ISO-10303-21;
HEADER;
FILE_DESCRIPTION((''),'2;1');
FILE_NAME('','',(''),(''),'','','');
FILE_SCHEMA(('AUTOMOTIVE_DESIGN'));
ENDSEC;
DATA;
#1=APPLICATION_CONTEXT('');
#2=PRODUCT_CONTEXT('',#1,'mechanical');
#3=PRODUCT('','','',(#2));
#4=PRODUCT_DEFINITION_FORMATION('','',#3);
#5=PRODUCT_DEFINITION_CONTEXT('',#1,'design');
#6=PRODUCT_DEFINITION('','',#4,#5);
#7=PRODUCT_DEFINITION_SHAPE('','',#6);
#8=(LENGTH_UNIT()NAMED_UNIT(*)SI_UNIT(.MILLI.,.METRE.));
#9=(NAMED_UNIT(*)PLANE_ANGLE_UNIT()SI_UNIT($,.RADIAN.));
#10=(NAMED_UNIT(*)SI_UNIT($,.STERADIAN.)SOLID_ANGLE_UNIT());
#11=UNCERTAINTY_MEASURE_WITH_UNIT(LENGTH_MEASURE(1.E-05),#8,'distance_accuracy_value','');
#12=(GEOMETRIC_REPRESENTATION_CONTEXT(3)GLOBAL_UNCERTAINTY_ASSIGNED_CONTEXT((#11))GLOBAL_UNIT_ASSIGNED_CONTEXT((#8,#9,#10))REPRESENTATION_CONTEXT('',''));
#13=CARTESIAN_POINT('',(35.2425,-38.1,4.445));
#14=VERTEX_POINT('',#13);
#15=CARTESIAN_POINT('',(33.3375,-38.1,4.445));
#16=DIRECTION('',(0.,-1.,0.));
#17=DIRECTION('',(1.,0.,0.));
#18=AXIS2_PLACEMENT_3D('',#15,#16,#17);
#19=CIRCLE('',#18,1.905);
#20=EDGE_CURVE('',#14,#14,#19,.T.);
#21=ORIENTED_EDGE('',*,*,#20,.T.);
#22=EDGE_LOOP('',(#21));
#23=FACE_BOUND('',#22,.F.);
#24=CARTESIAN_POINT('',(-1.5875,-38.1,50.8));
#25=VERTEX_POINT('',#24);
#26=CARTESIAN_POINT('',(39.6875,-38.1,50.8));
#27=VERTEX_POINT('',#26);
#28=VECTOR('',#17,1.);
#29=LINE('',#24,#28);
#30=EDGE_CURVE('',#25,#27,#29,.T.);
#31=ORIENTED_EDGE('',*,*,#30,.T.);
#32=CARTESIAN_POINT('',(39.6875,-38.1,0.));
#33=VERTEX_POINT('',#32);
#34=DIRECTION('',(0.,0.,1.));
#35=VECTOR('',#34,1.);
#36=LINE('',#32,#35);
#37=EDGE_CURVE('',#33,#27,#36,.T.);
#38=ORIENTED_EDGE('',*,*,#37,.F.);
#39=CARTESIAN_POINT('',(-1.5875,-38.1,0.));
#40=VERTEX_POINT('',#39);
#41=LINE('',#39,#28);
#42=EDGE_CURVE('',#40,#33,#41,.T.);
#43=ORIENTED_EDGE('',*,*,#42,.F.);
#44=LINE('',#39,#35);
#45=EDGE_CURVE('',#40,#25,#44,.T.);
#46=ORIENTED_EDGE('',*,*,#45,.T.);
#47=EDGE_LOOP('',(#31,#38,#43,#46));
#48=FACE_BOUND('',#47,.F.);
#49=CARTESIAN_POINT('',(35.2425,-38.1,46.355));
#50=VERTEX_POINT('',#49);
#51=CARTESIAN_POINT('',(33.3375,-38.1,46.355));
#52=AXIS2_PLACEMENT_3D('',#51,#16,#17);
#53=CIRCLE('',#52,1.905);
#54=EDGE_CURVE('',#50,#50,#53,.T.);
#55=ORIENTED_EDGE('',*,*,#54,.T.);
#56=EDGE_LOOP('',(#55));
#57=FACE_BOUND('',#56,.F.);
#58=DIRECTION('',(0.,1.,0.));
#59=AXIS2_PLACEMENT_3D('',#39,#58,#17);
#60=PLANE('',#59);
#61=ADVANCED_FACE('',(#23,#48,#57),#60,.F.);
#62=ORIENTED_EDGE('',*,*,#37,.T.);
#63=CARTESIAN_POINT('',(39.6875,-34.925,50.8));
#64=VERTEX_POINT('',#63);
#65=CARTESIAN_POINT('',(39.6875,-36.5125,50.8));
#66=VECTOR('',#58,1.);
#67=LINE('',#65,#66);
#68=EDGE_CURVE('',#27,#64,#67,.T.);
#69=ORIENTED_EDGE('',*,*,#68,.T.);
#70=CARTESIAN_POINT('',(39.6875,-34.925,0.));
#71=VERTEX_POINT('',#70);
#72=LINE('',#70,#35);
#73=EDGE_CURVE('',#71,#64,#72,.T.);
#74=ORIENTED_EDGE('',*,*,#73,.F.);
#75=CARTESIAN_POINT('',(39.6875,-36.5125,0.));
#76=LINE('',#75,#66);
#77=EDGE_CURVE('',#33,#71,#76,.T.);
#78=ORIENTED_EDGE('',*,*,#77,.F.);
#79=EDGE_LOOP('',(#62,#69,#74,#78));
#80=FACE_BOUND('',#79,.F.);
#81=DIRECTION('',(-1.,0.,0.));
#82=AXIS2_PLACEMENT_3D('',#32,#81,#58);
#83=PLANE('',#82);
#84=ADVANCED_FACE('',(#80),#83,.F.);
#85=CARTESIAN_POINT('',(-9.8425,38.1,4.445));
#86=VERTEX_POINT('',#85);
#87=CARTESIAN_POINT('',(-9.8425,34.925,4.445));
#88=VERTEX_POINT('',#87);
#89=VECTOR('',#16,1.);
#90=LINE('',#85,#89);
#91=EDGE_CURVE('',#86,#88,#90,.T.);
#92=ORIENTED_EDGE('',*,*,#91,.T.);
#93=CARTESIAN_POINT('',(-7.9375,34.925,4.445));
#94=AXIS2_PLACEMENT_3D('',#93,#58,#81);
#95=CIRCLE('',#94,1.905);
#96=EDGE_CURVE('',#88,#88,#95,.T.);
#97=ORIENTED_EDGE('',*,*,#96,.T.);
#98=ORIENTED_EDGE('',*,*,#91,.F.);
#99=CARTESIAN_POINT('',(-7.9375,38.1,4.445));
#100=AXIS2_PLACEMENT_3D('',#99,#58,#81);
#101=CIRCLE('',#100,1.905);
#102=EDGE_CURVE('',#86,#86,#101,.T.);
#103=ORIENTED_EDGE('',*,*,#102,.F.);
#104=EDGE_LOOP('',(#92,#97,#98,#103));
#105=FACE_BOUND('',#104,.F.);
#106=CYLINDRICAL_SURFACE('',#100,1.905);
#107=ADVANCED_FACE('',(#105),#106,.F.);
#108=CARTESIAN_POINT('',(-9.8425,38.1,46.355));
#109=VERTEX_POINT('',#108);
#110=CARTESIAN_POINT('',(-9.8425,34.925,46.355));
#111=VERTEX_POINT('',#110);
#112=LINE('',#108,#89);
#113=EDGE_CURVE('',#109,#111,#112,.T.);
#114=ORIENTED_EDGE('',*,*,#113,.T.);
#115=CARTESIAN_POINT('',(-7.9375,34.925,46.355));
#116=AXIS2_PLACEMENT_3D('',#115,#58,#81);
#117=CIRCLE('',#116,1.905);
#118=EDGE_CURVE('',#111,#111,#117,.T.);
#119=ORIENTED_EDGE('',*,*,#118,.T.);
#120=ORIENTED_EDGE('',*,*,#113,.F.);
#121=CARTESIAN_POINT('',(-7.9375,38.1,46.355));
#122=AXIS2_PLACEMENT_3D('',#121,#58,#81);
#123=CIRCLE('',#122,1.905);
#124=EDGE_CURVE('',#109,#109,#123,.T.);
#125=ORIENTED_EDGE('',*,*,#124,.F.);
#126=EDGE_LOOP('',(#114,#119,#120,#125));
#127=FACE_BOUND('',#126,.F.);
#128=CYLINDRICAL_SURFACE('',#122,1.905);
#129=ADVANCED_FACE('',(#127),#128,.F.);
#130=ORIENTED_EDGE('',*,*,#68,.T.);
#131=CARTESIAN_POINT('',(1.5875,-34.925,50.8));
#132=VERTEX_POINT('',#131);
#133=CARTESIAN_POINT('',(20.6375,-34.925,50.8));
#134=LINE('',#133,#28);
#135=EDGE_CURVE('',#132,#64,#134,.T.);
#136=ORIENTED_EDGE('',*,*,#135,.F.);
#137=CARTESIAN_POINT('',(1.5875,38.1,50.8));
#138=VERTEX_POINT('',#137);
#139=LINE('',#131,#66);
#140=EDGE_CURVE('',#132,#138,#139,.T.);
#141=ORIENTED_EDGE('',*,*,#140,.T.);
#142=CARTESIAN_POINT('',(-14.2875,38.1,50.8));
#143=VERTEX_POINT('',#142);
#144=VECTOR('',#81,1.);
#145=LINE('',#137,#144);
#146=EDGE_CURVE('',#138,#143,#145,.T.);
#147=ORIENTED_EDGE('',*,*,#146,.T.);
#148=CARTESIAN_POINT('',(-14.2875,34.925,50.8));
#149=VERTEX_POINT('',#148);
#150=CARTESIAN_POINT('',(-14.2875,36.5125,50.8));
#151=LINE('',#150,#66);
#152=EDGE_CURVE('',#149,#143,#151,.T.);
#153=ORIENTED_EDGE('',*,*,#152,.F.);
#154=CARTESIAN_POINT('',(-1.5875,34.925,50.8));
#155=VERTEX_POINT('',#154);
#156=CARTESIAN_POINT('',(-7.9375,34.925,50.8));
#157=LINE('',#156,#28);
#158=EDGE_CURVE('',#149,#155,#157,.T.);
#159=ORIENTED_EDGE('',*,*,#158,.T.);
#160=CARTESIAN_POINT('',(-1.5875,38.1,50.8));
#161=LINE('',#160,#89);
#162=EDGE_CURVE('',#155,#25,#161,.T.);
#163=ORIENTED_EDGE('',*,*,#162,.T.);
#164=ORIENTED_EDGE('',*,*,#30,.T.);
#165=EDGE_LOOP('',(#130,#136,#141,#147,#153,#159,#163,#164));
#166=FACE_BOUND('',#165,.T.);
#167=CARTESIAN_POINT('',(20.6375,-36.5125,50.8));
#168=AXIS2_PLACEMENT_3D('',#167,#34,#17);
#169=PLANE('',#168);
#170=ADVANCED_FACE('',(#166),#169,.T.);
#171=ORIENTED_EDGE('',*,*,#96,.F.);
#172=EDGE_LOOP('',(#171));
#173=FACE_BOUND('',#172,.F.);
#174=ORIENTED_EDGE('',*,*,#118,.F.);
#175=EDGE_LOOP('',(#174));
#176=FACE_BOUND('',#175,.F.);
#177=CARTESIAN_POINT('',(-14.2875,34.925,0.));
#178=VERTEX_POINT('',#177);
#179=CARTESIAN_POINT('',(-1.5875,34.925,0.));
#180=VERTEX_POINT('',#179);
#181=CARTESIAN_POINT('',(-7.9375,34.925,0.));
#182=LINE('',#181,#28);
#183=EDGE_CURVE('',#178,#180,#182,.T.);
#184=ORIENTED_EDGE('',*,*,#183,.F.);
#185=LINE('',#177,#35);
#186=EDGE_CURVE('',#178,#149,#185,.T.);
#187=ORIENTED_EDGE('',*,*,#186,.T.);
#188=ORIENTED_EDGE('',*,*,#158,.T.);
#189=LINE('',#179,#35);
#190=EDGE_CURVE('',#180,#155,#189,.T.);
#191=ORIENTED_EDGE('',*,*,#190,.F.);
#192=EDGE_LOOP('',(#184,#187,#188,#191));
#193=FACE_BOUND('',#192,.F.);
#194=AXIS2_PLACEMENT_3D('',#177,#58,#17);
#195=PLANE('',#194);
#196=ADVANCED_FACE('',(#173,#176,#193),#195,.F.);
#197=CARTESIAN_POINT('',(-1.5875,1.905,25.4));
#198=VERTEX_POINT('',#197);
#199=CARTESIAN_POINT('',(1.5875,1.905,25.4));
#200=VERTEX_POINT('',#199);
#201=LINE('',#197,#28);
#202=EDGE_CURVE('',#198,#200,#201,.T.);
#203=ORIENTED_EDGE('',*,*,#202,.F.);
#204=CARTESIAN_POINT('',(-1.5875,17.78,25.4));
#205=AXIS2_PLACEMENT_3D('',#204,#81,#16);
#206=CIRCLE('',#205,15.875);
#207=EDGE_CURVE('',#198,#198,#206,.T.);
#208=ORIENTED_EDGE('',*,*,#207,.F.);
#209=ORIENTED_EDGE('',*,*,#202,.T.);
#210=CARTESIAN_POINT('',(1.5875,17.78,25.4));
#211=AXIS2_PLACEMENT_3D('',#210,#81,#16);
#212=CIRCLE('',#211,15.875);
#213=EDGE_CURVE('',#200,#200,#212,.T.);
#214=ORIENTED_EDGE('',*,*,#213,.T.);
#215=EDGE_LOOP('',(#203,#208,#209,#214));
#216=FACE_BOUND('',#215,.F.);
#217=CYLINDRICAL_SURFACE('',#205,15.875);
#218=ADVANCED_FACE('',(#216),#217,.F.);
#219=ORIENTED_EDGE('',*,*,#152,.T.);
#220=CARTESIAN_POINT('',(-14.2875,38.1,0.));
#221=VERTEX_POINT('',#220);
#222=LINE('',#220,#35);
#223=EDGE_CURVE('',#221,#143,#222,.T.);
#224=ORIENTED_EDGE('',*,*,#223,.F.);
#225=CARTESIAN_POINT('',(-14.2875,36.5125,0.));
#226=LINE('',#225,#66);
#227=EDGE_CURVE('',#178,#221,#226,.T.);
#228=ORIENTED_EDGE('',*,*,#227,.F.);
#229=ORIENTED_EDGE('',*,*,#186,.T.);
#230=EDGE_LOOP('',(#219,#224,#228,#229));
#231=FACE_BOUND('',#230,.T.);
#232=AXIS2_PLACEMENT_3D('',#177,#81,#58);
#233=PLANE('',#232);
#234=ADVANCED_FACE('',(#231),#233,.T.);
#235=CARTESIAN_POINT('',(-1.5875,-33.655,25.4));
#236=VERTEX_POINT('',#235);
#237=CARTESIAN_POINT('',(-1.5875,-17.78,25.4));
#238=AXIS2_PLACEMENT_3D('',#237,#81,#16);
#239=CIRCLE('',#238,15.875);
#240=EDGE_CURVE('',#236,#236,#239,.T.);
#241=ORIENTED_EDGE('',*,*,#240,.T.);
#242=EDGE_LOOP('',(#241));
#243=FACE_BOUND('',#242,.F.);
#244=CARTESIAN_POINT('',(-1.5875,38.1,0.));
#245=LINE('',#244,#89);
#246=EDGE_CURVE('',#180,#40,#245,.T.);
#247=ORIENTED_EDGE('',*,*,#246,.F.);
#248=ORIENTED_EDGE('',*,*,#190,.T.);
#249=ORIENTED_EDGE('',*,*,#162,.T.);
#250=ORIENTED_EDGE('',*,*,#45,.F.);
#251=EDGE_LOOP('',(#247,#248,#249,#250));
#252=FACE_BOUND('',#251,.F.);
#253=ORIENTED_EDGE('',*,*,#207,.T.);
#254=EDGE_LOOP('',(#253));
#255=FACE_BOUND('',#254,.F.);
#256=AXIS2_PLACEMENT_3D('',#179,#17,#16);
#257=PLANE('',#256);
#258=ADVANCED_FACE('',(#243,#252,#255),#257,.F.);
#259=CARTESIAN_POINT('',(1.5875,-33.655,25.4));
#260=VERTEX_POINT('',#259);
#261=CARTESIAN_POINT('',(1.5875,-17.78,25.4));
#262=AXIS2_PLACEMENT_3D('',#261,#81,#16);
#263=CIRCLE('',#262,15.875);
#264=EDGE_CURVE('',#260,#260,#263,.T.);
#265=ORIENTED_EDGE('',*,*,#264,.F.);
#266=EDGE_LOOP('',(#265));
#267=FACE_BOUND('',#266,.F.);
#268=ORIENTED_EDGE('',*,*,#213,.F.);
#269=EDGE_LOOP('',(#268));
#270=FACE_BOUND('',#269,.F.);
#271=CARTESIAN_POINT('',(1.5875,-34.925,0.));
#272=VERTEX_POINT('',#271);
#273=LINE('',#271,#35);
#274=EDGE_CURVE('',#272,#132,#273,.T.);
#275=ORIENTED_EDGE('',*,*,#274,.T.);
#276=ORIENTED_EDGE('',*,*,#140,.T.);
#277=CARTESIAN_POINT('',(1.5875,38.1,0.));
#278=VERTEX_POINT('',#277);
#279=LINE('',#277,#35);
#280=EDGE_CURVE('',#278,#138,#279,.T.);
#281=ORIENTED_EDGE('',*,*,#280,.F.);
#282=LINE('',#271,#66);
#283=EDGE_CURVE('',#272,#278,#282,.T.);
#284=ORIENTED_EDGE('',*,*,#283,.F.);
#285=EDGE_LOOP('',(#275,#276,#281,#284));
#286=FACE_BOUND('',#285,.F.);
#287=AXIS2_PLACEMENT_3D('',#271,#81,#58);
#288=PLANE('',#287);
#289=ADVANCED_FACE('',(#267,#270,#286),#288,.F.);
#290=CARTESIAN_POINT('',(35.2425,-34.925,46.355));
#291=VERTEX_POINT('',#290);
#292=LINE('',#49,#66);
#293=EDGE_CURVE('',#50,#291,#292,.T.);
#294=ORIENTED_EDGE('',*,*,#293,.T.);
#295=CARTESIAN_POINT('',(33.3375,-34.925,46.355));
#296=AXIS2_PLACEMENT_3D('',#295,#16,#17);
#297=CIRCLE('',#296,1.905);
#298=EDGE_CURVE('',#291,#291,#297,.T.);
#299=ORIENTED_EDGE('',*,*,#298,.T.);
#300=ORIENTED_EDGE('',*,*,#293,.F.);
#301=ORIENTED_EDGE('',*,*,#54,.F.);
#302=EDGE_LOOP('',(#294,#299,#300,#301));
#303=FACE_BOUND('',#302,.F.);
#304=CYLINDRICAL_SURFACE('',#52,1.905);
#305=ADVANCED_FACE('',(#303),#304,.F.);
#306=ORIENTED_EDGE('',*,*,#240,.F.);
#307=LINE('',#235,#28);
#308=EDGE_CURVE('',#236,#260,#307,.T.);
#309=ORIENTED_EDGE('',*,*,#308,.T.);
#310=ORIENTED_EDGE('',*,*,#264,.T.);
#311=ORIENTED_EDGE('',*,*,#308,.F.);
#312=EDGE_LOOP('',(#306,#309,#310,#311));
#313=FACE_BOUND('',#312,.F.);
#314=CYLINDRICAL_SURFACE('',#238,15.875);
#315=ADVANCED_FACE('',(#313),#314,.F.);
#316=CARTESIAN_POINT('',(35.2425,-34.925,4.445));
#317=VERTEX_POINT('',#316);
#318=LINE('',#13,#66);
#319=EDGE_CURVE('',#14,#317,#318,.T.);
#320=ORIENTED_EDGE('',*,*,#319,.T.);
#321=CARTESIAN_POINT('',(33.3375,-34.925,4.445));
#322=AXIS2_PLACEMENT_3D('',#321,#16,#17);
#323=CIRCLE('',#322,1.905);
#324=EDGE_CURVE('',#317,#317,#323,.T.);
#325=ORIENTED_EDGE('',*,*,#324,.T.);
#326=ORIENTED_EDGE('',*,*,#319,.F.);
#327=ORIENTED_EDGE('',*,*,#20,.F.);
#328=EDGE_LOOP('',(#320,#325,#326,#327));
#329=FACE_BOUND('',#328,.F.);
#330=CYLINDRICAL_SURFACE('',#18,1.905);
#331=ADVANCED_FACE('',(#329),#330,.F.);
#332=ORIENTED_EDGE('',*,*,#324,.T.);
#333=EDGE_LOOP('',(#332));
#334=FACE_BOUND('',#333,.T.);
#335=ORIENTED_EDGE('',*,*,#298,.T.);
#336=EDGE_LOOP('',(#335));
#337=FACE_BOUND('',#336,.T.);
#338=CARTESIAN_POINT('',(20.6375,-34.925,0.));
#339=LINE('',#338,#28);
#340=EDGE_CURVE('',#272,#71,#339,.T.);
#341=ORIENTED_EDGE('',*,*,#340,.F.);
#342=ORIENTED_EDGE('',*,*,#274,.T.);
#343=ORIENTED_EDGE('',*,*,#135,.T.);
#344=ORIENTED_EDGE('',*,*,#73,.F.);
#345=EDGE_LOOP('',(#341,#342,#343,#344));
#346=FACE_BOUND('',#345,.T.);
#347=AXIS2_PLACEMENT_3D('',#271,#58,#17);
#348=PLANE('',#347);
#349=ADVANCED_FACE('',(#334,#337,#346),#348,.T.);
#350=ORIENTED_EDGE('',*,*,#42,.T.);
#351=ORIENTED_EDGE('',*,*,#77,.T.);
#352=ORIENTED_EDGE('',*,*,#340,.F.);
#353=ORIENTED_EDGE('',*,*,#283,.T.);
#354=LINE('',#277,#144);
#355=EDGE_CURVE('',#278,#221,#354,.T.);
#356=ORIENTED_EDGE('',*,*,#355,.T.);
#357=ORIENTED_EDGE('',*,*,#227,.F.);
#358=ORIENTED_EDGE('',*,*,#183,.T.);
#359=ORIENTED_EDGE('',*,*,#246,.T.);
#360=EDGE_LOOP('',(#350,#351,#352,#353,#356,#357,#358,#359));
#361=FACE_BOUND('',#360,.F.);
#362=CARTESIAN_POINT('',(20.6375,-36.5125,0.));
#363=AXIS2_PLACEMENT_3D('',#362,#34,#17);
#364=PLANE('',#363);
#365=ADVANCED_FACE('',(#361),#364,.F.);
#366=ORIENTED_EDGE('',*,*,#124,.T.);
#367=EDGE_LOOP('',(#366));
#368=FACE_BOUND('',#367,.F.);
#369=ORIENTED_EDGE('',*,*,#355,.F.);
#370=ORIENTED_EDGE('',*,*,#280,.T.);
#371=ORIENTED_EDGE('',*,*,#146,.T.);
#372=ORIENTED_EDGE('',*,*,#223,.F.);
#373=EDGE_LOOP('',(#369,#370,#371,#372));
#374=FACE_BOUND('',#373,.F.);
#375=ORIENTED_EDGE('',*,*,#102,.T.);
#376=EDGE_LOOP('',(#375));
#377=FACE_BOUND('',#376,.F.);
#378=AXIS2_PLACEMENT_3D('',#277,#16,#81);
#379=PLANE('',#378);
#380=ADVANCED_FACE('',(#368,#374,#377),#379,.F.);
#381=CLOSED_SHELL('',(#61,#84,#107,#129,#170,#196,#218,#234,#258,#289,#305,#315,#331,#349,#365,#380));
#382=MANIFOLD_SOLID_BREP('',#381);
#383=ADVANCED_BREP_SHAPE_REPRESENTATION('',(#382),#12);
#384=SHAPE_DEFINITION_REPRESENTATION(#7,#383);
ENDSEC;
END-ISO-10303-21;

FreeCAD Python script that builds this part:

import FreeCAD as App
import Part
import Sketcher

V = App.Vector
Q = App.Units.Quantity


def add_polygon(sketch, points):
    """Adds a closed chain of lines whose ends are joined by coincident constraints."""
    first, n = sketch.GeometryCount, len(points)
    for a, b in zip(points, points[1:] + points[:1]):
        sketch.addGeometry(Part.LineSegment(App.Vector(*a, 0), App.Vector(*b, 0)), False)
    for i in range(n):
        sketch.addConstraint(Sketcher.Constraint("Coincident", first + i, 2, first + (i + 1) % n, 1))

doc = App.newDocument("Part")
body = doc.addObject("PartDesign::Body", "Body")

# Sketch on XY plane
sketch1 = body.newObject("Sketcher::SketchObject", "Sketch")
sketch1.AttachmentSupport = (doc.getObject("XY_Plane"), [""])
sketch1.MapMode = "FlatFace"
add_polygon(sketch1, [(39.7, -38.1), (39.7, -34.9), (1.6, -34.9), (1.6, 38.1), (-14.3, 38.1), (-14.3, 34.9), (-1.6, 34.9), (-1.6, -38.1)])  # lines 0-7
sketch1.addConstraint([
    Sketcher.Constraint("Vertical", 0),
    Sketcher.Constraint("Horizontal", 1),
    Sketcher.Constraint("Vertical", 2),
    Sketcher.Constraint("Horizontal", 3),
    Sketcher.Constraint("Vertical", 4),
    Sketcher.Constraint("Horizontal", 5),
    Sketcher.Constraint("Vertical", 6),
    Sketcher.Constraint("Horizontal", 7),
    Sketcher.Constraint("Symmetric", 1, 2, 5, 2, -1, 1),
    Sketcher.Constraint("Equal", 0, 4),
    Sketcher.Constraint("DistanceX", 1, 2, 1, 1, Q("1.5 in")),
    Sketcher.Constraint("DistanceX", 5, 1, 5, 2, Q("0.5 in")),
    Sketcher.Constraint("DistanceY", 6, 2, 2, 2, Q("3 in")),
    Sketcher.Constraint("DistanceX", 3, 2, 3, 1, Q("0.625 in")),
    Sketcher.Constraint("DistanceY", 0, 1, 0, 2, Q("0.125 in")),
])
pad1 = body.newObject("PartDesign::Pad", "Pad")
pad1.Profile = sketch1
pad1.Length = Q("2 in")

# Sketch on YZ plane
sketch2 = body.newObject("Sketcher::SketchObject", "Sketch001")
sketch2.AttachmentSupport = (doc.getObject("YZ_Plane"), [""])
sketch2.MapMode = "FlatFace"
sketch2.AttachmentOffset = App.Placement(V(0, 0, -0.0625 * 25.4), App.Rotation())
sketch2.addGeometry([
    Part.Circle(V(-18, 25, 0), V(0, 0, 1), 16),
    Part.Circle(V(18, 25, 0), V(0, 0, 1), 16),
], False)
sketch2.addConstraint([
    Sketcher.Constraint("Equal", 0, 1),
    Sketcher.Constraint("Symmetric", 0, 3, 1, 3, -2),
    Sketcher.Constraint("Diameter", 0, Q("1.25 in")),
    Sketcher.Constraint("DistanceY", -1, 1, 0, 3, Q("1 in")),
    Sketcher.Constraint("DistanceX", 0, 3, -1, 1, Q("0.7 in")),
])
pocket1 = body.newObject("PartDesign::Pocket", "Pocket")
pocket1.Profile = sketch2
pocket1.Length = Q("1 in")
pocket1.Reversed = True

# Sketch on XZ plane
sketch3 = body.newObject("Sketcher::SketchObject", "Sketch002")
sketch3.AttachmentSupport = (doc.getObject("XZ_Plane"), [""])
sketch3.MapMode = "FlatFace"
sketch3.AttachmentOffset = App.Placement(V(0, 0, 1.5 * 25.4), App.Rotation())
sketch3.addGeometry([
    Part.Circle(V(33.3, 46.4, 0), V(0, 0, 1), 1.9),
    Part.Circle(V(33.3, 4.4, 0), V(0, 0, 1), 1.9),
], False)
sketch3.addConstraint([
    Sketcher.Constraint("Equal", 0, 1),
    Sketcher.Constraint("Vertical", 0, 3, 1, 3),
    Sketcher.Constraint("Diameter", 0, Q("0.15 in")),
    Sketcher.Constraint("DistanceY", 1, 3, 0, 3, Q("1.65 in")),
    Sketcher.Constraint("DistanceX", -1, 1, 0, 3, Q("1.3125 in")),
    Sketcher.Constraint("DistanceY", -1, 1, 0, 3, Q("1.825 in")),
])
pocket2 = body.newObject("PartDesign::Pocket", "Pocket001")
pocket2.Profile = sketch3
pocket2.Length = Q("1 in")

# Sketch on XZ plane
sketch4 = body.newObject("Sketcher::SketchObject", "Sketch003")
sketch4.AttachmentSupport = (doc.getObject("XZ_Plane"), [""])
sketch4.MapMode = "FlatFace"
sketch4.AttachmentOffset = App.Placement(V(0, 0, -1.5 * 25.4), App.Rotation())
sketch4.addGeometry([
    Part.Circle(V(-7.9, 4.4, 0), V(0, 0, 1), 1.9),
    Part.Circle(V(-7.9, 46.4, 0), V(0, 0, 1), 1.9),
], False)
sketch4.addConstraint([
    Sketcher.Constraint("Equal", 0, 1),
    Sketcher.Constraint("Vertical", 0, 3, 1, 3),
    Sketcher.Constraint("Diameter", 0, Q("0.15 in")),
    Sketcher.Constraint("DistanceY", 0, 3, 1, 3, Q("1.65 in")),
    Sketcher.Constraint("DistanceX", 0, 3, -1, 1, Q("0.3125 in")),
    Sketcher.Constraint("DistanceY", -1, 1, 0, 3, Q("0.175 in")),
])
pocket3 = body.newObject("PartDesign::Pocket", "Pocket002")
pocket3.Profile = sketch4
pocket3.Length = Q("1 in")
pocket3.Reversed = True

doc.recompute()
